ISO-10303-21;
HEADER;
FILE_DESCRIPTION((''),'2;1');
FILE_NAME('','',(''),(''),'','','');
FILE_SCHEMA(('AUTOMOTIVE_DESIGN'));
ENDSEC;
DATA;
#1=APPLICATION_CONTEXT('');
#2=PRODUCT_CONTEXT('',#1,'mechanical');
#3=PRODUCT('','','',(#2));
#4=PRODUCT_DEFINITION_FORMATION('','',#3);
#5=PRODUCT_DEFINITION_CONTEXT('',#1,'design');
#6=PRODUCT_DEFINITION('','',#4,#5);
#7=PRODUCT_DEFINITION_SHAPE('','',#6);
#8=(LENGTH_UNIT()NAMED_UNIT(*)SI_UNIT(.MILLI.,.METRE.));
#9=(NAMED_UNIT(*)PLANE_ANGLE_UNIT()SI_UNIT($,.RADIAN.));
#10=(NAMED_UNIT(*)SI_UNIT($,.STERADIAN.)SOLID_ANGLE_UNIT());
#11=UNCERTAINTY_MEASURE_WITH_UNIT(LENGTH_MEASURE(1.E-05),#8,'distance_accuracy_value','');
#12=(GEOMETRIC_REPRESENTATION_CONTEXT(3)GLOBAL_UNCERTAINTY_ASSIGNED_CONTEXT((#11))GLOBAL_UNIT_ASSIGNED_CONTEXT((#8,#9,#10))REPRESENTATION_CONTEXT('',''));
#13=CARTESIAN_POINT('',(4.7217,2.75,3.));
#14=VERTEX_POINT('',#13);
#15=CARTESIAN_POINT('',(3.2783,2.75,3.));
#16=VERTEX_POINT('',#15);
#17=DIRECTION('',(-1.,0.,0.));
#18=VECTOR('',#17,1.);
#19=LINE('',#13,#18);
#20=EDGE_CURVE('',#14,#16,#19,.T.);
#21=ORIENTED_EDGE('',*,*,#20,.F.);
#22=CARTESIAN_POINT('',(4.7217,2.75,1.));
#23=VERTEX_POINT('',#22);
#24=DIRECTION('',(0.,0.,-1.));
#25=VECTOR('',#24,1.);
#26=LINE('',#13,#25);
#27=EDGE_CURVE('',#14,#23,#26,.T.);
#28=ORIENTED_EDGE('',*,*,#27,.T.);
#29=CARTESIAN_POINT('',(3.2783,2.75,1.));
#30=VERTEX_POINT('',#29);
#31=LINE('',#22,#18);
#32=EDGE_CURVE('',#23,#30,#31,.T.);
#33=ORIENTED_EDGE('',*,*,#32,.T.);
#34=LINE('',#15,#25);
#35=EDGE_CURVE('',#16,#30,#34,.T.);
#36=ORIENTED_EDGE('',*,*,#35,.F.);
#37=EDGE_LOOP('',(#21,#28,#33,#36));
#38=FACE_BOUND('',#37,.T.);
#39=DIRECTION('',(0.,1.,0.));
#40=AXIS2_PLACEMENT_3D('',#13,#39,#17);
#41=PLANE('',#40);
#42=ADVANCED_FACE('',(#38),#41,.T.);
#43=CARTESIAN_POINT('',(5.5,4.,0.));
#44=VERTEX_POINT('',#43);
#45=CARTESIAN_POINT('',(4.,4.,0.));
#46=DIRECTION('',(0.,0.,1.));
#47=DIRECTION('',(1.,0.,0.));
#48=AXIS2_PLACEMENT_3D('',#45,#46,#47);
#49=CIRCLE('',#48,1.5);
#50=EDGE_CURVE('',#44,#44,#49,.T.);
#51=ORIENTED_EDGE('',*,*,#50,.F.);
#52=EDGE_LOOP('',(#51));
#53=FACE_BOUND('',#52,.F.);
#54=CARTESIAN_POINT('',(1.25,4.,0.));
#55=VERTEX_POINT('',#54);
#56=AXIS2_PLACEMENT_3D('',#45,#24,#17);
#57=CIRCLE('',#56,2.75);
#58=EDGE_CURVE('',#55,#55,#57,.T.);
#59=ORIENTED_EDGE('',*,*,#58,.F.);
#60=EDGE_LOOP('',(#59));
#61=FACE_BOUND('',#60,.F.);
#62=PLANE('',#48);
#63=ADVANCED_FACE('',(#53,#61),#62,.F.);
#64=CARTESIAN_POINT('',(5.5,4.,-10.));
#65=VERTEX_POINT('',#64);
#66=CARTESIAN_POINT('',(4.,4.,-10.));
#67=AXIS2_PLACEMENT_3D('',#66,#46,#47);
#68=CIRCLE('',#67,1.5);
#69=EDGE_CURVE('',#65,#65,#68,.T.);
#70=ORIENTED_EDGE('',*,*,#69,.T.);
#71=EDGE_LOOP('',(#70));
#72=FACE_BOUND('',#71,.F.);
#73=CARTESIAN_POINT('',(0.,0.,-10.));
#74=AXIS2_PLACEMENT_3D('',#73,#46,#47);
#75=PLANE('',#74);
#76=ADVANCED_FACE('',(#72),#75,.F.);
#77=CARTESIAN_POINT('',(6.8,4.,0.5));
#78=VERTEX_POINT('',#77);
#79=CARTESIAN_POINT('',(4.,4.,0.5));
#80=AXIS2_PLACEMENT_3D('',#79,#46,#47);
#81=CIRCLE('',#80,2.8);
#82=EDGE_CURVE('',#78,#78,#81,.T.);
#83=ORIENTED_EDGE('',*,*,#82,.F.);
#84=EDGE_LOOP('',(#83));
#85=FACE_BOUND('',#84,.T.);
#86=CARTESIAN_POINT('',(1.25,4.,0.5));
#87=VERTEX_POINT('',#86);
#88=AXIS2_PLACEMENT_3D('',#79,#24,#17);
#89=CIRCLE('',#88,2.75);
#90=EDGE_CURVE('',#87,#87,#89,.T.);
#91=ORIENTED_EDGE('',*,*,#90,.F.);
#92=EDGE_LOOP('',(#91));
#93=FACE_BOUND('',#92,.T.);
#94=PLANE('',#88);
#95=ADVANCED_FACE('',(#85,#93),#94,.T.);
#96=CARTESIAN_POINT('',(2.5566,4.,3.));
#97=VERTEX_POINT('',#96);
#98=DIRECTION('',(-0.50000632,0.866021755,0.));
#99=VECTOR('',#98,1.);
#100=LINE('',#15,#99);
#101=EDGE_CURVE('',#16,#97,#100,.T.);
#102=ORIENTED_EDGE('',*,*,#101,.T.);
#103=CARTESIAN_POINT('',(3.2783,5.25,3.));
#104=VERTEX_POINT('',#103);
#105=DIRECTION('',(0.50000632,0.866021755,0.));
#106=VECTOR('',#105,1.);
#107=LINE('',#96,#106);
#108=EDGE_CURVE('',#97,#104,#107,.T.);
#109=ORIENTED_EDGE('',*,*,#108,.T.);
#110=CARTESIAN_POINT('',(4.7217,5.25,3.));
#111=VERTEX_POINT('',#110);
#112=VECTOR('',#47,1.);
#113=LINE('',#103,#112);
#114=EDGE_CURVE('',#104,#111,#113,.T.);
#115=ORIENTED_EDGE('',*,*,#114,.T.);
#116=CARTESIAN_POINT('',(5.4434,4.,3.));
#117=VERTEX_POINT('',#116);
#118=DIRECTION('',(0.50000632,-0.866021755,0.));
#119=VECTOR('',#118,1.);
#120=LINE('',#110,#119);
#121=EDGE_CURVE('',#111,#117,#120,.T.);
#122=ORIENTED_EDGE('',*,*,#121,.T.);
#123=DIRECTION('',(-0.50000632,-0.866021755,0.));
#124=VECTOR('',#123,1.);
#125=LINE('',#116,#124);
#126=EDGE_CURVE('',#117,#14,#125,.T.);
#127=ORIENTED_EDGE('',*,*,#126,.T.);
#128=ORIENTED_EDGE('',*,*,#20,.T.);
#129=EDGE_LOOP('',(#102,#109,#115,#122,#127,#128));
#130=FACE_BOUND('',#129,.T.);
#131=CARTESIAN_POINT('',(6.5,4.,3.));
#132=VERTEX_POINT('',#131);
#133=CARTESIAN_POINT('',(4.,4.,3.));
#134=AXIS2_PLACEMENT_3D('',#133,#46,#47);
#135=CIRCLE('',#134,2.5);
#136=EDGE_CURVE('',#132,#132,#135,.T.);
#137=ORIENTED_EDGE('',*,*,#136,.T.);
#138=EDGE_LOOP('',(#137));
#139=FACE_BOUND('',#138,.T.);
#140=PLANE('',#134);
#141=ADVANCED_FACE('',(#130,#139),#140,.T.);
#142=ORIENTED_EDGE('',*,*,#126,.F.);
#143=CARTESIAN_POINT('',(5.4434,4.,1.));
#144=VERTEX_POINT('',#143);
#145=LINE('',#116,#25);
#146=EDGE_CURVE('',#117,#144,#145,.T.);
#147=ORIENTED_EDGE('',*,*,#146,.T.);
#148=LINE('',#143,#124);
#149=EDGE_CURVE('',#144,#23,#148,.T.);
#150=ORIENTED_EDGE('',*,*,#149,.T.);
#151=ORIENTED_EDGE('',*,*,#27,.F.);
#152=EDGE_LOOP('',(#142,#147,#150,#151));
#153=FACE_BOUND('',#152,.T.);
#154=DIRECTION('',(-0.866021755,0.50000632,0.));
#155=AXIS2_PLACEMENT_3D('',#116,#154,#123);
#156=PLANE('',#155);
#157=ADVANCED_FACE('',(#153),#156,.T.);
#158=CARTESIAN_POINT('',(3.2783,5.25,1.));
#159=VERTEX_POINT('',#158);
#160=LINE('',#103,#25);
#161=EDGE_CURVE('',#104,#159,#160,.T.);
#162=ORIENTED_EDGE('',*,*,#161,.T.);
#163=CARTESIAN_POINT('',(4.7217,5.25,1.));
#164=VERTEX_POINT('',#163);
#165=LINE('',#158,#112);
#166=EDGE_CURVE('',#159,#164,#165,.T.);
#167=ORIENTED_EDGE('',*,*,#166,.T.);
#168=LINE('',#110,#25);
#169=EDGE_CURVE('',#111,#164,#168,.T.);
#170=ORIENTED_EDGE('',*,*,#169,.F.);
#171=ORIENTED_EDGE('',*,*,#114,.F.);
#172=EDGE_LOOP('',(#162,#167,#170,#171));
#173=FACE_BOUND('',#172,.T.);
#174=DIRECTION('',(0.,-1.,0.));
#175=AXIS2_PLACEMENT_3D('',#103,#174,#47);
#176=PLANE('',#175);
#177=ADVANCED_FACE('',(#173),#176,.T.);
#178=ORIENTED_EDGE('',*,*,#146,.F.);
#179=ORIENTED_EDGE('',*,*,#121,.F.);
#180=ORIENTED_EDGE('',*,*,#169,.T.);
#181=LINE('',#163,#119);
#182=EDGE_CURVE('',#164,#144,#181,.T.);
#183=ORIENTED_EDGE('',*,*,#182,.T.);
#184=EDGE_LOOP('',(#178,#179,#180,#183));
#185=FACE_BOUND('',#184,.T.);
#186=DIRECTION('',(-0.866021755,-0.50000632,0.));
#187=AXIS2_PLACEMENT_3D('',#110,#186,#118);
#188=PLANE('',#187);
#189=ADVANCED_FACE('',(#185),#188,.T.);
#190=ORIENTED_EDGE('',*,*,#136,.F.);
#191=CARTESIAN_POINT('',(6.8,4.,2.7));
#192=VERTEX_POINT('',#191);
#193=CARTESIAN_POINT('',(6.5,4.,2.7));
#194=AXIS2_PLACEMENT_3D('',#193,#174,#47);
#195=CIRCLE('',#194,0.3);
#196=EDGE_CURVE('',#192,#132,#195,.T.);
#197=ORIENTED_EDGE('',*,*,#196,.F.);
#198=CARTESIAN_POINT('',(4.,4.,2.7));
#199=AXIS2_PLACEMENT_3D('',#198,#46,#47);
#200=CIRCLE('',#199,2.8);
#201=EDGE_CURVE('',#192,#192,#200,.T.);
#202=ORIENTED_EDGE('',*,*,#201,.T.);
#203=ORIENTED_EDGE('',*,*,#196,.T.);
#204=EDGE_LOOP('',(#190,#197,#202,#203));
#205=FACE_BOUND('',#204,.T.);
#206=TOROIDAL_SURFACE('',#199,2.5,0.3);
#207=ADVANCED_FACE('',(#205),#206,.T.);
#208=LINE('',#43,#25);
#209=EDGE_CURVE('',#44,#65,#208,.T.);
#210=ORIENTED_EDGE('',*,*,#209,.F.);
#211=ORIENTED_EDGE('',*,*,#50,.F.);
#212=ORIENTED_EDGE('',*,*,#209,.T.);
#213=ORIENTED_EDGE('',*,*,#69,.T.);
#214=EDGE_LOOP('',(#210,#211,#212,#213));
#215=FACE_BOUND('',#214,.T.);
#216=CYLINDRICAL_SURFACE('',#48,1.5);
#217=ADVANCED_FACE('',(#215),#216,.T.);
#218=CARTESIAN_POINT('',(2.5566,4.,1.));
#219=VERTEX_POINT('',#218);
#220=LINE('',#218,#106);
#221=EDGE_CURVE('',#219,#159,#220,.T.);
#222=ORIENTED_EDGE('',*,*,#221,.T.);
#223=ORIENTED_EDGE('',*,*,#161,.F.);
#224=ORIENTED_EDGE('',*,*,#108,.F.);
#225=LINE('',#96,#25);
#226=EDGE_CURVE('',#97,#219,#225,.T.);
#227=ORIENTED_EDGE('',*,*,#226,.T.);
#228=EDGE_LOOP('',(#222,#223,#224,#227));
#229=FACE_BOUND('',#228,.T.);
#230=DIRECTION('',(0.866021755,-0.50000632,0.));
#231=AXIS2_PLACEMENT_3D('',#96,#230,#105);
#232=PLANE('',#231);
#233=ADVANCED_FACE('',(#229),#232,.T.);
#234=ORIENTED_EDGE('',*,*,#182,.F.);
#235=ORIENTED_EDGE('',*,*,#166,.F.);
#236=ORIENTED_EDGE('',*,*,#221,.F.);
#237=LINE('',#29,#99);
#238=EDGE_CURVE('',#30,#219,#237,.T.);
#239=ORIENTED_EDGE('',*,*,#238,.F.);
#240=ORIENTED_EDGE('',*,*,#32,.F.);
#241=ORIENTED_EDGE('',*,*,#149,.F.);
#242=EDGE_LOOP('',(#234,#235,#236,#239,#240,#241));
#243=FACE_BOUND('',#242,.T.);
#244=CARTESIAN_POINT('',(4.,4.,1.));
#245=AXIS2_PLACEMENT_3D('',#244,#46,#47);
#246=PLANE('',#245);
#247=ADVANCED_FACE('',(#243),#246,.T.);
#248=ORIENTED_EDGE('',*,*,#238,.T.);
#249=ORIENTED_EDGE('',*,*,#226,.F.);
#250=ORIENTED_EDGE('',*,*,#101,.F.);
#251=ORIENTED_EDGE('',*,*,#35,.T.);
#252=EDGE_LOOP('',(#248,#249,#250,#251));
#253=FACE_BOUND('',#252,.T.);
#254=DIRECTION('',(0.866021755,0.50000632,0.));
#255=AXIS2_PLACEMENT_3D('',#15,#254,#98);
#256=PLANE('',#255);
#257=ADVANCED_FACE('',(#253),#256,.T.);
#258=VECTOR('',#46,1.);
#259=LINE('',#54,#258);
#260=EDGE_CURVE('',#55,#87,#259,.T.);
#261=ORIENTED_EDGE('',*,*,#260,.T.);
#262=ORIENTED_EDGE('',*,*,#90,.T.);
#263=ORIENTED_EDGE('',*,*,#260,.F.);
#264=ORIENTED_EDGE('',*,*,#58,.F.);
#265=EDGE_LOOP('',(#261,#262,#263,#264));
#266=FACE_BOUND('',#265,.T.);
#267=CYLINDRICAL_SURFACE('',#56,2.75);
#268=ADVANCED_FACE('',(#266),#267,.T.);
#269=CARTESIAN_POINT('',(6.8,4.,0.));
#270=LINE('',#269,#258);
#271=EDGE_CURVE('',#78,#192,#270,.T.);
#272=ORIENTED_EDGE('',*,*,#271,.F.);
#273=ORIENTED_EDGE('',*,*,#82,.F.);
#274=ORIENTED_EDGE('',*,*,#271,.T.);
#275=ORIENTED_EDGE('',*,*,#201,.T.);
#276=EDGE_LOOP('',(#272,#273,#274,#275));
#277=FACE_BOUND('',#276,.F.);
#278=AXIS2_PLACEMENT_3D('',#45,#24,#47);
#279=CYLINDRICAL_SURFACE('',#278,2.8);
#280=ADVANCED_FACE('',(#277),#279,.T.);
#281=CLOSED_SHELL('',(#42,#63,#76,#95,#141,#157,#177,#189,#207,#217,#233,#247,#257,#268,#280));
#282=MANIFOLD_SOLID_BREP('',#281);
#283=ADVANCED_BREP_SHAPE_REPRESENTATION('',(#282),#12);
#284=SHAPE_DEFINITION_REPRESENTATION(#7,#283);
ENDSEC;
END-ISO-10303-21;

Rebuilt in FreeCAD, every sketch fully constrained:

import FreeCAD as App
import Part
import Sketcher
Q = App.Units.Quantity


def edges_at(feature, points):
    """Names of the edges that pass closest to the given points."""
    edges = feature.Shape.Edges
    near = lambda p: min(range(len(edges)), key=lambda i: edges[i].distToShape(Part.Vertex(*p))[0])
    return sorted({f"Edge{near(p) + 1}" for p in points})

doc = App.newDocument("Part")
params = doc.addObject("Spreadsheet::Sheet", "Params")
for row, (alias, value) in enumerate([
    ("sketch1_diameter", "3 mm"),
    ("pad1_length", "10 mm"),
    ("sketch2_diameter", "5.6 mm"),
    ("pad2_length", "3 mm"),
    ("fillet_radius", "0.3 mm"),
    ("sketch3_diameter", "5.5 mm"),
    ("sketch3_diameter2", "5.6 mm"),
    ("pocket1_length", "0.5 mm"),
    ("pocket2_length", "2 mm"),
], start=1):
    params.set(f"A{row}", alias)
    params.set(f"B{row}", "=" + value)
    params.setAlias(f"B{row}", alias)

body = doc.addObject("PartDesign::Body", "Body")

# Sketch on XY plane
sketch1 = body.newObject("Sketcher::SketchObject", "Sketch")
sketch1.AttachmentSupport = (doc.getObject("XY_Plane"), [""])
sketch1.MapMode = "FlatFace"
sketch1.addGeometry(Part.Circle(App.Vector(4, 4, 0), App.Vector(0, 0, 1), 1.5), False)
sketch1.addConstraint(Sketcher.Constraint("Diameter", 0, 3.0))
sketch1.addConstraint(Sketcher.Constraint("DistanceX", -1, 1, 0, 3, 4.0))
sketch1.addConstraint(Sketcher.Constraint("DistanceY", -1, 1, 0, 3, 4.0))
sketch1.setExpression("Constraints[0]", "Params.sketch1_diameter")
pad1 = body.newObject("PartDesign::Pad", "Pad")
pad1.Profile = sketch1
pad1.setExpression("Length", "Params.pad1_length")
pad1.Reversed = True

# Sketch on XY plane
sketch2 = body.newObject("Sketcher::SketchObject", "Sketch001")
sketch2.AttachmentSupport = (doc.getObject("XY_Plane"), [""])
sketch2.MapMode = "FlatFace"
sketch2.addGeometry(Part.Circle(App.Vector(4, 4, 0), App.Vector(0, 0, 1), 2.8), False)
sketch2.addConstraint(Sketcher.Constraint("Diameter", 0, 5.6))
sketch2.addConstraint(Sketcher.Constraint("DistanceX", -1, 1, 0, 3, 4.0))
sketch2.addConstraint(Sketcher.Constraint("DistanceY", -1, 1, 0, 3, 4.0))
sketch2.setExpression("Constraints[0]", "Params.sketch2_diameter")
pad2 = body.newObject("PartDesign::Pad", "Pad001")
pad2.Profile = sketch2
pad2.setExpression("Length", "Params.pad2_length")
doc.recompute()

fillet = body.newObject("PartDesign::Fillet", "Fillet")
fillet.Base = (pad2, edges_at(pad2, [(1.2, 4, 3)]))
fillet.setExpression("Radius", "Params.fillet_radius")

# Sketch on XY plane
sketch3 = body.newObject("Sketcher::SketchObject", "Sketch002")
sketch3.AttachmentSupport = (doc.getObject("XY_Plane"), [""])
sketch3.MapMode = "FlatFace"
sketch3.addGeometry(Part.Circle(App.Vector(4, 4, 0), App.Vector(0, 0, 1), 2.8), False)
sketch3.addGeometry(Part.Circle(App.Vector(4, 4, 0), App.Vector(0, 0, 1), 2.75), False)
sketch3.addConstraint(Sketcher.Constraint("Coincident", 1, 3, 0, 3))
sketch3.addConstraint(Sketcher.Constraint("Diameter", 1, 5.5))
sketch3.addConstraint(Sketcher.Constraint("Diameter", 0, 5.6))
sketch3.addConstraint(Sketcher.Constraint("DistanceX", -1, 1, 0, 3, 4.0))
sketch3.addConstraint(Sketcher.Constraint("DistanceY", -1, 1, 0, 3, 4.0))
sketch3.setExpression("Constraints[1]", "Params.sketch3_diameter")
sketch3.setExpression("Constraints[2]", "Params.sketch3_diameter2")
pocket1 = body.newObject("PartDesign::Pocket", "Pocket")
pocket1.Profile = sketch3
pocket1.setExpression("Length", "Params.pocket1_length")
pocket1.Reversed = True

# Sketch on XY plane
sketch4 = body.newObject("Sketcher::SketchObject", "Sketch003")
sketch4.AttachmentSupport = (doc.getObject("XY_Plane"), [""])
sketch4.MapMode = "FlatFace"
sketch4.AttachmentOffset = App.Placement(App.Vector(0, 0, 3), App.Rotation())
sketch4.addGeometry(Part.LineSegment(App.Vector(5.4434, 4, 0), App.Vector(4.7217, 5.25, 0)), False)
sketch4.addGeometry(Part.LineSegment(App.Vector(4.7217, 5.25, 0), App.Vector(3.2783, 5.25, 0)), False)
sketch4.addGeometry(Part.LineSegment(App.Vector(3.2783, 5.25, 0), App.Vector(2.5566, 4, 0)), False)
sketch4.addGeometry(Part.LineSegment(App.Vector(2.5566, 4, 0), App.Vector(3.2783, 2.75, 0)), False)
sketch4.addGeometry(Part.LineSegment(App.Vector(3.2783, 2.75, 0), App.Vector(4.7217, 2.75, 0)), False)
sketch4.addGeometry(Part.LineSegment(App.Vector(4.7217, 2.75, 0), App.Vector(5.4434, 4, 0)), False)
sketch4.addConstraint(Sketcher.Constraint("Coincident", 0, 2, 1, 1))
sketch4.addConstraint(Sketcher.Constraint("Coincident", 1, 2, 2, 1))
sketch4.addConstraint(Sketcher.Constraint("Coincident", 2, 2, 3, 1))
sketch4.addConstraint(Sketcher.Constraint("Coincident", 3, 2, 4, 1))
sketch4.addConstraint(Sketcher.Constraint("Coincident", 4, 2, 5, 1))
sketch4.addConstraint(Sketcher.Constraint("Coincident", 5, 2, 0, 1))
sketch4.addConstraint(Sketcher.Constraint("Horizontal", 1))
sketch4.addConstraint(Sketcher.Constraint("Horizontal", 4))
sketch4.addConstraint(Sketcher.Constraint("Parallel", 0, 3))
sketch4.addConstraint(Sketcher.Constraint("Parallel", 2, 5))
sketch4.addConstraint(Sketcher.Constraint("Horizontal", 2, 2, 5, 2))
sketch4.addConstraint(Sketcher.Constraint("Vertical", 1, 2, 3, 2))
sketch4.addConstraint(Sketcher.Constraint("Vertical", 0, 2, 4, 2))
sketch4.addConstraint(Sketcher.Constraint("DistanceY", 3, 2, 1, 2, 2.5))
sketch4.addConstraint(Sketcher.Constraint("Angle", 0, Q("120.0004 deg")))
sketch4.addConstraint(Sketcher.Constraint("DistanceY", -1, 1, 2, 2, 4.0))
sketch4.addConstraint(Sketcher.Constraint("DistanceX", 1, 2, 1, 1, 1.4434))
sketch4.addConstraint(Sketcher.Constraint("DistanceX", -1, 1, 0, 2, 4.7217))
pocket2 = body.newObject("PartDesign::Pocket", "Pocket001")
pocket2.Profile = sketch4
pocket2.setExpression("Length", "Params.pocket2_length")

doc.recompute()
